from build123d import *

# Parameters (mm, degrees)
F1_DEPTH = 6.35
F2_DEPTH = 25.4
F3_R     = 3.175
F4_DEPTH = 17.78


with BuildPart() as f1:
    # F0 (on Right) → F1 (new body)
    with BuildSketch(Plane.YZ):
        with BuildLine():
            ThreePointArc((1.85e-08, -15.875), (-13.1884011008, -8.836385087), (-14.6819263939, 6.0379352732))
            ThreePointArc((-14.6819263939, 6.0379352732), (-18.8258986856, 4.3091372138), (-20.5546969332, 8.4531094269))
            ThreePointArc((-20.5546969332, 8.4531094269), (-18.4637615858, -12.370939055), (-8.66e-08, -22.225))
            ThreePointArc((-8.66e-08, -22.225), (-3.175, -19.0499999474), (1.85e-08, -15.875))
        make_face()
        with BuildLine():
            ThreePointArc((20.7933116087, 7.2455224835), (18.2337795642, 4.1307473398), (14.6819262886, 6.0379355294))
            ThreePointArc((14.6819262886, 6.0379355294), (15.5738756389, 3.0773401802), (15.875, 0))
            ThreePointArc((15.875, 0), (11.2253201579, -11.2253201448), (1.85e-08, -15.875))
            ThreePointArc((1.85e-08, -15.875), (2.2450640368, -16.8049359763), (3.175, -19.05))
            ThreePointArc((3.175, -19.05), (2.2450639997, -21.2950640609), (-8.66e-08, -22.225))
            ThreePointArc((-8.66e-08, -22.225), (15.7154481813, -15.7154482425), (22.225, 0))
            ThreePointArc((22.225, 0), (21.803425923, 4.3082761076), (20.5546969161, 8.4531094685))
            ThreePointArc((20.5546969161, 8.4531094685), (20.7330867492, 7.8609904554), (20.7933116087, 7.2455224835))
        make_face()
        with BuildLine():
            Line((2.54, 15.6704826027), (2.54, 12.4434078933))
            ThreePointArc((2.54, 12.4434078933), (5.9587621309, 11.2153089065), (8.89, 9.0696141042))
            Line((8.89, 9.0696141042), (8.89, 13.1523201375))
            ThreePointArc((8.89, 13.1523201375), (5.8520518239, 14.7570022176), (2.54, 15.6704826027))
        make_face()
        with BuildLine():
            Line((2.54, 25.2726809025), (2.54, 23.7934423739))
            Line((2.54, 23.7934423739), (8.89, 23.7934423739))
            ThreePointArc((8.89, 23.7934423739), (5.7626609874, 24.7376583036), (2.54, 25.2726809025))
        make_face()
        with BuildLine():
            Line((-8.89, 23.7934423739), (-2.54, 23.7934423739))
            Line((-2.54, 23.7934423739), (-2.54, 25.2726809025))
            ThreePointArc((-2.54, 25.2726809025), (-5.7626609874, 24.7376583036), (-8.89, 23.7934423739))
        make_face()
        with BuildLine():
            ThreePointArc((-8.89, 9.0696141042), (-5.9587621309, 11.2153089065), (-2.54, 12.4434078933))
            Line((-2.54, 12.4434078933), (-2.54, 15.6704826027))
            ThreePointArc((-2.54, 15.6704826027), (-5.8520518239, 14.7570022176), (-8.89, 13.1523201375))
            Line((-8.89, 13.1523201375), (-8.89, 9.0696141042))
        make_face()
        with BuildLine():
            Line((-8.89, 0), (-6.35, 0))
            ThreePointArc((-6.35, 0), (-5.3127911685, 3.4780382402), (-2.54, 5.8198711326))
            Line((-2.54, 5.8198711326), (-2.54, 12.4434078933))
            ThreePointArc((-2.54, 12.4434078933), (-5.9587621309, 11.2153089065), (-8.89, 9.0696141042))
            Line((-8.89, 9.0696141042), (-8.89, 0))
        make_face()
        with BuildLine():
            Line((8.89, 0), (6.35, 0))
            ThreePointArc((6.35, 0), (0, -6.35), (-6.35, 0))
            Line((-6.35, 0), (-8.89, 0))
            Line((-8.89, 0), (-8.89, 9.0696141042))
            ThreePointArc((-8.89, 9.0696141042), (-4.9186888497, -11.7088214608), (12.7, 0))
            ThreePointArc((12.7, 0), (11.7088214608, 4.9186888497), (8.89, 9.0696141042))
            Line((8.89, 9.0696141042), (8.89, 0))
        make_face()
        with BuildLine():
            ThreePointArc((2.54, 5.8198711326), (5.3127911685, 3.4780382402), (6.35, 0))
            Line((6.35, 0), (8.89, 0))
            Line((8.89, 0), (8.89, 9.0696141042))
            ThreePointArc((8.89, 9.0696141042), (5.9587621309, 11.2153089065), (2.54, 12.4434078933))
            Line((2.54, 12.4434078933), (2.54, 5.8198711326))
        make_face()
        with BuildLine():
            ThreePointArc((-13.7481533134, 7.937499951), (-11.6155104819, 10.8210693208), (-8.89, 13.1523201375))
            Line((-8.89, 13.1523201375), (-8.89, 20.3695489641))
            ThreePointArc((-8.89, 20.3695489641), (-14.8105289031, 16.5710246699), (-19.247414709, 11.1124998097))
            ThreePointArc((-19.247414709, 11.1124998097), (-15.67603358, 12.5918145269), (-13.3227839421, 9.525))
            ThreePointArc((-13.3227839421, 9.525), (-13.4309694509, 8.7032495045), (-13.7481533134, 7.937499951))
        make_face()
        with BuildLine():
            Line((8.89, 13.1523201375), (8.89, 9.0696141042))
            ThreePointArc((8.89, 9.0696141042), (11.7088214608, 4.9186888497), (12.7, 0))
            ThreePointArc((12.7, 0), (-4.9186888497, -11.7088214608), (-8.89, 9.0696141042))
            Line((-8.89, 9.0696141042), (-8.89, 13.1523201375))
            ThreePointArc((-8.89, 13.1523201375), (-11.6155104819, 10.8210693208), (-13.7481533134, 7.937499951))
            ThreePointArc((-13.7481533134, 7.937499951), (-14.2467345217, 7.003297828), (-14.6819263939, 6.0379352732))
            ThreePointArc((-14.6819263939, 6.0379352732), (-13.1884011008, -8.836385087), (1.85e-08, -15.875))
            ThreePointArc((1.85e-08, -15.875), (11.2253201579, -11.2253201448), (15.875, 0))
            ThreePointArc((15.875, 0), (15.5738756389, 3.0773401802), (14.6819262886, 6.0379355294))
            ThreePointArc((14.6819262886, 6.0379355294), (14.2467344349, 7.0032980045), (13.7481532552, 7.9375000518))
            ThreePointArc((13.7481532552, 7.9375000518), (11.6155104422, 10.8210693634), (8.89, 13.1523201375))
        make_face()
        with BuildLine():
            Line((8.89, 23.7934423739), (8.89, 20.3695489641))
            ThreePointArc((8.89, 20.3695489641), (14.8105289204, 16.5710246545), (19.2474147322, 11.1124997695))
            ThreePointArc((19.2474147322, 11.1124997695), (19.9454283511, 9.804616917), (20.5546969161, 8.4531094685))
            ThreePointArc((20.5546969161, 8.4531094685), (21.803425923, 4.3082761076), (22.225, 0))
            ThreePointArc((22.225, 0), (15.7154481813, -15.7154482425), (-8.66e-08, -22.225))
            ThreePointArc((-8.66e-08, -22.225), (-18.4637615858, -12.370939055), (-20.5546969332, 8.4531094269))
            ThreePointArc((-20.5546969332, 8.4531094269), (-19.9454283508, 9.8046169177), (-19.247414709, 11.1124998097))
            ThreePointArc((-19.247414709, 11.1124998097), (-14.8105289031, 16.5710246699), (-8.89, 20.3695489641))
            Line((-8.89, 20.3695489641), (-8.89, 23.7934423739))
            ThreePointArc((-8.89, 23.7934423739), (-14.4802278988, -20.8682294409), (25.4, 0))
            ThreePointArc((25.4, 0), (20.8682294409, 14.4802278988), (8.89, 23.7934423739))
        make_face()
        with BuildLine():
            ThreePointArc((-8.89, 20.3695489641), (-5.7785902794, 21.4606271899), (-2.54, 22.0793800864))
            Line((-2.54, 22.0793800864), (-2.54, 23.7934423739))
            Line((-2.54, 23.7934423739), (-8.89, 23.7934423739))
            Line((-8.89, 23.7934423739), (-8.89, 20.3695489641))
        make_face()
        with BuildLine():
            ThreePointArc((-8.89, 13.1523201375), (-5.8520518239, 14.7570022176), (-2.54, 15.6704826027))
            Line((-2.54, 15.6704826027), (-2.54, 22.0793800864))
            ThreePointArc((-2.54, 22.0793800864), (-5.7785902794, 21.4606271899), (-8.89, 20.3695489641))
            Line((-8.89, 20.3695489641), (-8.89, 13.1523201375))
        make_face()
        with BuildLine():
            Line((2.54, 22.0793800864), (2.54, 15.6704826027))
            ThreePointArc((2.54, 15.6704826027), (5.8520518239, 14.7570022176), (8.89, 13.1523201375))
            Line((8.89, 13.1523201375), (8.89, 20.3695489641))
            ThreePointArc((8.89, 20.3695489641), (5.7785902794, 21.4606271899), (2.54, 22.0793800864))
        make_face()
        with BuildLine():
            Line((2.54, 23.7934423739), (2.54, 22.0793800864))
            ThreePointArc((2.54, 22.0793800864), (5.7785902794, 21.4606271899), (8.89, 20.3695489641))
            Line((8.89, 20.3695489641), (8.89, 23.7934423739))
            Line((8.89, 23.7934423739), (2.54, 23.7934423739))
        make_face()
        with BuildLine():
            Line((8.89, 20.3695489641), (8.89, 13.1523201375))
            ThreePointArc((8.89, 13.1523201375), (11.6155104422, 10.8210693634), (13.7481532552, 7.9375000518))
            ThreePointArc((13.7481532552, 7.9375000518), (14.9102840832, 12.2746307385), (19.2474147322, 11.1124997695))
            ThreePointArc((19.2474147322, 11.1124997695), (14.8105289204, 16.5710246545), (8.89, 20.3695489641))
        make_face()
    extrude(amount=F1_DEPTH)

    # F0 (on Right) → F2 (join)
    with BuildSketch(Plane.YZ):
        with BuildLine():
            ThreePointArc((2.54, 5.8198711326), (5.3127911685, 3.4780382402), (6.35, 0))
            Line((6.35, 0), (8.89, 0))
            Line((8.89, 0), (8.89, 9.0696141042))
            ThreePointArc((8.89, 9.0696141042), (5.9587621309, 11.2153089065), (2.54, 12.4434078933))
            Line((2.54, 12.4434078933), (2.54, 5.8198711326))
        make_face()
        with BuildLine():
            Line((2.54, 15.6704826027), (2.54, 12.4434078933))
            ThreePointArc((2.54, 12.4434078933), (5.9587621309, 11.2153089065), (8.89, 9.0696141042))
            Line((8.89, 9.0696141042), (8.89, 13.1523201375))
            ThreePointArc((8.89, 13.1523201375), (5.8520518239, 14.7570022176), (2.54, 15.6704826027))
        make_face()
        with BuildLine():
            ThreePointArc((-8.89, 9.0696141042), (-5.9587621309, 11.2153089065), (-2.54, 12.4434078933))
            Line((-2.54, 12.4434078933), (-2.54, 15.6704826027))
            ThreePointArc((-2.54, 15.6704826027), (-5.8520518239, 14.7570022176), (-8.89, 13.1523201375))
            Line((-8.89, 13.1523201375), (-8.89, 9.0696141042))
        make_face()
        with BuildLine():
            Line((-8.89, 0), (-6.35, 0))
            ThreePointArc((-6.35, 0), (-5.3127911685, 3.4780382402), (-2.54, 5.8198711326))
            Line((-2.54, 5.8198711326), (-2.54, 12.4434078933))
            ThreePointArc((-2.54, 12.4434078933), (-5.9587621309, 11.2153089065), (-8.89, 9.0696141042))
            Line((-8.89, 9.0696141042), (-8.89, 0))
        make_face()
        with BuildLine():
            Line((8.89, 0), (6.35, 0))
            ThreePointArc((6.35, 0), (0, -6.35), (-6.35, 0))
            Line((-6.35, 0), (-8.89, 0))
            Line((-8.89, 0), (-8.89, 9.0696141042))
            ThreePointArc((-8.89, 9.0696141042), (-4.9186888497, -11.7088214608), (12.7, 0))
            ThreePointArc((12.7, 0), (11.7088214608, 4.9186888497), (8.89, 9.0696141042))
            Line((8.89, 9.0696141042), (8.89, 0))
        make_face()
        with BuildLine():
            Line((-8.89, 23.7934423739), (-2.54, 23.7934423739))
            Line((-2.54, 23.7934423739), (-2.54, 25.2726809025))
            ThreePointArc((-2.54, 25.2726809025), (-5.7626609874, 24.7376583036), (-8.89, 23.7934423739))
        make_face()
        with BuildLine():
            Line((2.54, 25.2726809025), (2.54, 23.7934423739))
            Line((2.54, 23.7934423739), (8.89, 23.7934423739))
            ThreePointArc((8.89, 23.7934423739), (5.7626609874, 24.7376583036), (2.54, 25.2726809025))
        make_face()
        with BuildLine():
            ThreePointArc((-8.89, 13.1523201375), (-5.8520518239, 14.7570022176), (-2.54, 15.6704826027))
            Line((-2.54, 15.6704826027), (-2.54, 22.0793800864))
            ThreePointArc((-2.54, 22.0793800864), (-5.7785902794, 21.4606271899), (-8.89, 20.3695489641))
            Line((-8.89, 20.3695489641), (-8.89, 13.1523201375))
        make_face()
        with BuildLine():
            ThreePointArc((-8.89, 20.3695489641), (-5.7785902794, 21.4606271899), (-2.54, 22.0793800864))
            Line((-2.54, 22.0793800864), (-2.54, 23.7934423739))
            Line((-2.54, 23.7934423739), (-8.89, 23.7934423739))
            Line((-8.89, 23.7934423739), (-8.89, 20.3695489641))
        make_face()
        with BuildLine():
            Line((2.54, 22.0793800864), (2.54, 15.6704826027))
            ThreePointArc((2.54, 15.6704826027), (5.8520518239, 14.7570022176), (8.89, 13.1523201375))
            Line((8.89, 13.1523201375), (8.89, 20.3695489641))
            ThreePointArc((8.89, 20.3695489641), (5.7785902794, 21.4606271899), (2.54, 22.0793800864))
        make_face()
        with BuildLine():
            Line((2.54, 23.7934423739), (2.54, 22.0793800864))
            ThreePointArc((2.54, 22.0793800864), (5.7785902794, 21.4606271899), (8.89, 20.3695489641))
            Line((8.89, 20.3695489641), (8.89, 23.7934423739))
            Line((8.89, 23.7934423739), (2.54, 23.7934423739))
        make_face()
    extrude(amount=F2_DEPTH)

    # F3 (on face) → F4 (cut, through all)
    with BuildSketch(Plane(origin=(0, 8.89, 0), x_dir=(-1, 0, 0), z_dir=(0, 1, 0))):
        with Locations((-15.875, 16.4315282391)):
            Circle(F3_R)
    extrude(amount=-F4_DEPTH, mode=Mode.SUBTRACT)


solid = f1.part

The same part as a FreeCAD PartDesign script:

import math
import FreeCAD as App
import Part
import Sketcher
from FreeCAD import Vector
Q = App.Units.Quantity

doc = App.newDocument("Part")
body = doc.addObject("PartDesign::Body", "Body")

# Sketch on YZ plane
sketch1 = doc.addObject("Sketcher::SketchObject", "Sketch")
body.addObject(sketch1)
sketch1.AttachmentSupport = (doc.YZ_Plane, [""])
sketch1.MapMode = "FlatFace"
sketch1.addGeometry([
    Part.ArcOfCircle(Part.Circle(Vector(0, 0, 0), Vector(0, 0, 1), 25.4), math.radians(0), math.radians(70)),  # 0
    Part.ArcOfCircle(Part.Circle(Vector(0, 0, 0), Vector(0, 0, 1), 25.4), math.radians(69.51), math.radians(84.26)),  # 1
    Part.LineSegment(Vector(2.5, 25.3, 0), Vector(2.5, 5.8, 0)),  # 2
    Part.ArcOfCircle(Part.Circle(Vector(0, 0, 0), Vector(0, 0, 1), 6.3), math.radians(0), math.radians(66)),  # 3
    Part.ArcOfCircle(Part.Circle(Vector(0, 0, 0), Vector(0, 0, 1), 6.3), math.radians(180), math.radians(360)),  # 4
    Part.ArcOfCircle(Part.Circle(Vector(0, 0, 0), Vector(0, 0, 1), 6.3), math.radians(114), math.radians(180)),  # 5
    Part.LineSegment(Vector(-2.5, 5.8, 0), Vector(-2.5, 25.3, 0)),  # 6
    Part.ArcOfCircle(Part.Circle(Vector(0, 0, 0), Vector(0, 0, 1), 25.4), math.radians(95.74), math.radians(110.49)),  # 7
    Part.ArcOfCircle(Part.Circle(Vector(0, 0, 0), Vector(0, 0, 1), 25.4), math.radians(110), math.radians(360)),  # 8
    Part.ArcOfCircle(Part.Circle(Vector(0, -19.1, 0), Vector(0, 0, 1), 3.2), math.radians(-90), math.radians(0)),  # 9
    Part.ArcOfCircle(Part.Circle(Vector(0, -19.1, 0), Vector(0, 0, 1), 3.2), math.radians(90), math.radians(270)),  # 10
    Part.ArcOfCircle(Part.Circle(Vector(0, -19.1, 0), Vector(0, 0, 1), 3.2), math.radians(0), math.radians(90)),  # 11
    Part.ArcOfCircle(Part.Circle(Vector(-17.6, 7.2, 0), Vector(0, 0, 1), 3.2), math.radians(158), math.radians(338)),  # 12
    Part.ArcOfCircle(Part.Circle(Vector(0, 0, 0), Vector(0, 0, 1), 22.2), math.radians(150), math.radians(157.65)),  # 13
    Part.ArcOfCircle(Part.Circle(Vector(-16.5, 9.5, 0), Vector(0, 0, 1), 3.2), math.radians(0), math.radians(150)),  # 14
    Part.ArcOfCircle(Part.Circle(Vector(-16.5, 9.5, 0), Vector(0, 0, 1), 3.2), math.radians(-30), math.radians(0)),  # 15
    Part.ArcOfCircle(Part.Circle(Vector(0, 0, 0), Vector(0, 0, 1), 15.9), math.radians(150), math.radians(157.65)),  # 16
    Part.ArcOfCircle(Part.Circle(Vector(0, 0, 0), Vector(0, 0, 1), 22.2), math.radians(22.35), math.radians(30)),  # 17
    Part.ArcOfCircle(Part.Circle(Vector(17.6, 7.2, 0), Vector(0, 0, 1), 3.2), math.radians(0), math.radians(22)),  # 18
    Part.ArcOfCircle(Part.Circle(Vector(17.6, 7.2, 0), Vector(0, 0, 1), 3.2), math.radians(-158), math.radians(0)),  # 19
    Part.ArcOfCircle(Part.Circle(Vector(0, 0, 0), Vector(0, 0, 1), 15.9), math.radians(22.35), math.radians(30)),  # 20
    Part.ArcOfCircle(Part.Circle(Vector(16.5, 9.5, 0), Vector(0, 0, 1), 3.2), math.radians(30), math.radians(210)),  # 21
], False)
sketch1.addConstraint([
    Sketcher.Constraint("Tangent", 0, 2, 1, 1),
    Sketcher.Constraint("Coincident", 1, 2, 2, 1),
    Sketcher.Constraint("Coincident", 2, 2, 3, 2),
    Sketcher.Constraint("Tangent", 3, 1, 4, 2),
    Sketcher.Constraint("Tangent", 4, 1, 5, 2),
    Sketcher.Constraint("Coincident", 5, 1, 6, 1),
    Sketcher.Constraint("Coincident", 6, 2, 7, 1),
    Sketcher.Constraint("Tangent", 7, 2, 8, 1),
    Sketcher.Constraint("Tangent", 8, 2, 0, 1),
    Sketcher.Constraint("Tangent", 9, 1, 10, 2),
    Sketcher.Constraint("Tangent", 10, 1, 11, 2),
    Sketcher.Constraint("Tangent", 11, 1, 9, 2),
    Sketcher.Constraint("Tangent", 12, 1, 13, 2),
    Sketcher.Constraint("Tangent", 13, 1, 14, 2),
    Sketcher.Constraint("Tangent", 14, 1, 15, 2),
    Sketcher.Constraint("Tangent", 15, 1, 16, 1),
    Sketcher.Constraint("Tangent", 16, 2, 12, 2),
    Sketcher.Constraint("Tangent", 17, 1, 18, 2),
    Sketcher.Constraint("Tangent", 18, 1, 19, 2),
    Sketcher.Constraint("Tangent", 19, 1, 20, 1),
    Sketcher.Constraint("Tangent", 20, 2, 21, 2),
    Sketcher.Constraint("Tangent", 21, 1, 17, 2),
    Sketcher.Constraint("Vertical", 2),
    Sketcher.Constraint("Vertical", 6),
    Sketcher.Constraint("Coincident", 0, 3, -1, 1),
    Sketcher.Constraint("Coincident", 3, 3, -1, 1),
    Sketcher.Constraint("Coincident", 7, 3, -1, 1),
    Sketcher.Constraint("Coincident", 13, 3, -1, 1),
    Sketcher.Constraint("Coincident", 16, 3, -1, 1),
    Sketcher.Constraint("Coincident", 17, 3, -1, 1),
    Sketcher.Constraint("Coincident", 20, 3, -1, 1),
    Sketcher.Constraint("Equal", 0, 1),
    Sketcher.Constraint("Equal", 3, 4),
    Sketcher.Constraint("Equal", 4, 5),
    Sketcher.Constraint("Equal", 11, 12),
    Sketcher.Constraint("Equal", 12, 14),
    Sketcher.Constraint("Equal", 13, 17),
    Sketcher.Constraint("Equal", 15, 18),
    Sketcher.Constraint("Equal", 18, 19),
    Sketcher.Constraint("PointOnObject", 9, 3, -2),
    Sketcher.Constraint("PointOnObject", 3, 1, -1),
    Sketcher.Constraint("PointOnObject", 4, 1, -1),
    Sketcher.Constraint("PointOnObject", 8, 2, -1),
    Sketcher.Constraint("PointOnObject", 9, 1, -2),
    Sketcher.Constraint("PointOnObject", 10, 1, -2),
    Sketcher.Constraint("Horizontal", 12, 3, 18, 3),
    Sketcher.Constraint("Horizontal", 15, 3, 21, 3),
    Sketcher.Constraint("Horizontal", 2, 2, 5, 1),
    Sketcher.Constraint("Horizontal", 0, 2, 7, 2),
    Sketcher.Constraint("Horizontal", 10, 3, 11, 1),
    Sketcher.Constraint("Horizontal", 21, 3, 14, 1),
    Sketcher.Constraint("Horizontal", 19, 3, 18, 1),
    Sketcher.Constraint("Radius", 0, Q("1 in")),
    Sketcher.Constraint("Radius", 3, Q("0.25 in")),
    Sketcher.Constraint("Radius", 9, Q("0.125 in")),
    Sketcher.Constraint("Radius", 13, Q("0.875 in")),
    Sketcher.Constraint("DistanceX", -1, 1, 1, 2, Q("0.1 in")),
    Sketcher.Constraint("DistanceX", 7, 2, 0, 2, Q("0.7 in")),
    Sketcher.Constraint("DistanceY", 9, 3, -1, 1, Q("0.75 in")),
    Sketcher.Constraint("DistanceY", -1, 1, 14, 3, Q("0.375 in")),
    Sketcher.Constraint("DistanceX", 12, 3, -1, 1, Q("17.618312 mm")),
])
pad1 = doc.addObject("PartDesign::Pad", "Pad")
body.addObject(pad1)
pad1.Profile = sketch1
pad1.Length = Q("0.25 in")

# Sketch on YZ plane
sketch2 = doc.addObject("Sketcher::SketchObject", "Sketch001")
body.addObject(sketch2)
sketch2.AttachmentSupport = (doc.YZ_Plane, [""])
sketch2.MapMode = "FlatFace"
sketch2.addGeometry([
    Part.ArcOfCircle(Part.Circle(Vector(0, 0, 0), Vector(0, 0, 1), 6), math.radians(0), math.radians(66)),  # 0
    Part.ArcOfCircle(Part.Circle(Vector(0, 0, 0), Vector(0, 0, 1), 6), math.radians(180), math.radians(360)),  # 1
    Part.ArcOfCircle(Part.Circle(Vector(0, 0, 0), Vector(0, 0, 1), 6), math.radians(114), math.radians(180)),  # 2
    Part.LineSegment(Vector(-3, 6, 0), Vector(-3, 25, 0)),  # 3
    Part.ArcOfCircle(Part.Circle(Vector(0, 0, 0), Vector(0, 0, 1), 25), math.radians(95.74), math.radians(110.49)),  # 4
    Part.LineSegment(Vector(-9, 24, 0), Vector(-9, 9, 0)),  # 5
    Part.ArcOfCircle(Part.Circle(Vector(0, 0, 0), Vector(0, 0, 1), 13), math.radians(134), math.radians(360)),  # 6
    Part.ArcOfCircle(Part.Circle(Vector(0, 0, 0), Vector(0, 0, 1), 13), math.radians(0), math.radians(46)),  # 7
    Part.LineSegment(Vector(9, 9, 0), Vector(9, 24, 0)),  # 8
    Part.ArcOfCircle(Part.Circle(Vector(0, 0, 0), Vector(0, 0, 1), 25), math.radians(69.51), math.radians(84.26)),  # 9
    Part.LineSegment(Vector(3, 25, 0), Vector(3, 6, 0)),  # 10
], False)
sketch2.addConstraint([
    Sketcher.Constraint("Tangent", 0, 1, 1, 2),
    Sketcher.Constraint("Tangent", 1, 1, 2, 2),
    Sketcher.Constraint("Coincident", 2, 1, 3, 1),
    Sketcher.Constraint("Coincident", 3, 2, 4, 1),
    Sketcher.Constraint("Coincident", 4, 2, 5, 1),
    Sketcher.Constraint("Coincident", 5, 2, 6, 1),
    Sketcher.Constraint("Tangent", 6, 2, 7, 1),
    Sketcher.Constraint("Coincident", 7, 2, 8, 1),
    Sketcher.Constraint("Coincident", 8, 2, 9, 1),
    Sketcher.Constraint("Coincident", 9, 2, 10, 1),
    Sketcher.Constraint("Coincident", 10, 2, 0, 2),
    Sketcher.Constraint("Vertical", 3),
    Sketcher.Constraint("Vertical", 5),
    Sketcher.Constraint("Vertical", 8),
    Sketcher.Constraint("Vertical", 10),
    Sketcher.Constraint("Coincident", 0, 3, -1, 1),
    Sketcher.Constraint("Coincident", 4, 3, -1, 1),
    Sketcher.Constraint("Coincident", 6, 3, -1, 1),
    Sketcher.Constraint("Coincident", 9, 3, -1, 1),
    Sketcher.Constraint("Equal", 0, 1),
    Sketcher.Constraint("Equal", 1, 2),
    Sketcher.Constraint("Equal", 6, 7),
    Sketcher.Constraint("Equal", 4, 9),
    Sketcher.Constraint("PointOnObject", 0, 1, -1),
    Sketcher.Constraint("PointOnObject", 1, 1, -1),
    Sketcher.Constraint("PointOnObject", 6, 2, -1),
    Sketcher.Constraint("Horizontal", 5, 2, 7, 2),
    Sketcher.Constraint("Horizontal", 3, 2, 9, 2),
    Sketcher.Constraint("Radius", 4, Q("1 in")),
    Sketcher.Constraint("Radius", 6, Q("0.5 in")),
    Sketcher.Constraint("Radius", 0, Q("0.25 in")),
    Sketcher.Constraint("DistanceX", 2, 1, -1, 1, Q("0.1 in")),
    Sketcher.Constraint("DistanceX", 4, 2, 1, 1, Q("0.1 in")),
])
pad2 = doc.addObject("PartDesign::Pad", "Pad001")
body.addObject(pad2)
pad2.Profile = sketch2
pad2.Length = Q("1 in")

# Sketch on XZ plane
sketch3 = doc.addObject("Sketcher::SketchObject", "Sketch002")
body.addObject(sketch3)
sketch3.AttachmentSupport = (doc.XZ_Plane, [""])
sketch3.MapMode = "FlatFace"
sketch3.AttachmentOffset = App.Placement(Vector(0, 0, -0.35 * 25.4), App.Rotation())
sketch3.addGeometry(Part.Circle(Vector(15.9, 16.4, 0), Vector(0, 0, 1), 3.2), False)
sketch3.addConstraint([
    Sketcher.Constraint("Diameter", 0, Q("0.25 in")),
    Sketcher.Constraint("DistanceX", -1, 1, 0, 3, Q("0.625 in")),
    Sketcher.Constraint("DistanceY", -1, 1, 0, 3, Q("16.431528 mm")),
])
pocket1 = doc.addObject("PartDesign::Pocket", "Pocket")
body.addObject(pocket1)
pocket1.Profile = sketch3
pocket1.Type = "ThroughAll"
pocket1.Reversed = True

doc.recompute()
